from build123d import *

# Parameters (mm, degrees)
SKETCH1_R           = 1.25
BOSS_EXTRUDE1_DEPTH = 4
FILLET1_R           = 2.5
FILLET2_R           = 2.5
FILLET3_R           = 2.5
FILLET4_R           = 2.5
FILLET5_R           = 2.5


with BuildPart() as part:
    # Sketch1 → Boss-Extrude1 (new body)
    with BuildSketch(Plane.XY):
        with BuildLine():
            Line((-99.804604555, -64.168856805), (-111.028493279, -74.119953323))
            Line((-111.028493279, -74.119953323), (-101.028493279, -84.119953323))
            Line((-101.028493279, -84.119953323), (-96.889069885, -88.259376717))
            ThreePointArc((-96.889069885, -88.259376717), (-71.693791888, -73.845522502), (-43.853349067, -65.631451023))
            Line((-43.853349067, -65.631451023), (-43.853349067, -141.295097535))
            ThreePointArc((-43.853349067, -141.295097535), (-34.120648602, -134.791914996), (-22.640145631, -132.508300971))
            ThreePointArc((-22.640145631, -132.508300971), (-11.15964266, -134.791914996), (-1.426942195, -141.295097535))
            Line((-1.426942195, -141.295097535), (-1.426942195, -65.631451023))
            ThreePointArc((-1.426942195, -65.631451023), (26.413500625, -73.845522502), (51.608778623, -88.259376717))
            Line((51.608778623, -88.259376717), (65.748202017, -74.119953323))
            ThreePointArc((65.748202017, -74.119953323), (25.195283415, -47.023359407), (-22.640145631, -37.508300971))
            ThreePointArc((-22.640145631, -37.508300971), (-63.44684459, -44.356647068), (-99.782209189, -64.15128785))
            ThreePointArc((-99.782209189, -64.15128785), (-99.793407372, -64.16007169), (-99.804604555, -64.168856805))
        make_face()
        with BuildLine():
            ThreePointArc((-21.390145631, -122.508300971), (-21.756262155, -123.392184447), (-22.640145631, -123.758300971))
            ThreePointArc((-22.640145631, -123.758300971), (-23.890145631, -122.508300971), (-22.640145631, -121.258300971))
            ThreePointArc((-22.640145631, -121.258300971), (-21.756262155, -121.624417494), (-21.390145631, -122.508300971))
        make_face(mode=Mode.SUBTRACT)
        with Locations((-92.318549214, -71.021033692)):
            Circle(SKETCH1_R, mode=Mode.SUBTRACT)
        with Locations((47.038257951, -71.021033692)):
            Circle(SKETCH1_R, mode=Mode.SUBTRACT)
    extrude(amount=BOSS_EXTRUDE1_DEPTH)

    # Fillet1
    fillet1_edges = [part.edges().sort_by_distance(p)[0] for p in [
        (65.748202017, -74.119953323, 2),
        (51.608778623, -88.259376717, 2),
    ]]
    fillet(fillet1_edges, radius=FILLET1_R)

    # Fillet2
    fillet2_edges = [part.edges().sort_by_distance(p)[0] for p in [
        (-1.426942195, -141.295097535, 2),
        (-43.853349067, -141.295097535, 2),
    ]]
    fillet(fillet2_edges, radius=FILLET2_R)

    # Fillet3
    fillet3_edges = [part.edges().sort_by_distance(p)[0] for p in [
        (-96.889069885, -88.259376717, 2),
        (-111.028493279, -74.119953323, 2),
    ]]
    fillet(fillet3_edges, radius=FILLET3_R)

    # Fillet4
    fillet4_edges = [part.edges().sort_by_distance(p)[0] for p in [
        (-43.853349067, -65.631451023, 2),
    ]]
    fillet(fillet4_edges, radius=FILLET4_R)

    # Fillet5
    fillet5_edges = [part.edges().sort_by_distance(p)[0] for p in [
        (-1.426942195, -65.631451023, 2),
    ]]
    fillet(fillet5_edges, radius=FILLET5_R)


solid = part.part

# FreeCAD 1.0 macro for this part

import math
import FreeCAD as App
import Part
import Sketcher


def edges_at(feature, points):
    """Names of the edges that pass closest to the given points."""
    edges = feature.Shape.Edges
    near = lambda p: min(range(len(edges)), key=lambda i: edges[i].distToShape(Part.Vertex(*p))[0])
    return sorted({f"Edge{near(p) + 1}" for p in points})

doc = App.newDocument("Part")
body = doc.addObject("PartDesign::Body", "Body")

# Sketch on XY plane
sketch1 = doc.addObject("Sketcher::SketchObject", "Sketch")
body.addObject(sketch1)
sketch1.AttachmentSupport = (doc.XY_Plane, [""])
sketch1.MapMode = "FlatFace"
sketch1.addGeometry(Part.LineSegment(App.Vector(-99.804605, -64.168857, 0), App.Vector(-111.028493, -74.119953, 0)), False)
sketch1.addGeometry(Part.LineSegment(App.Vector(-111.028493, -74.119953, 0), App.Vector(-96.88907, -88.259377, 0)), False)
sketch1.addGeometry(Part.ArcOfCircle(Part.Circle(App.Vector(-22.640146, -188.818301, 0), App.Vector(0, 0, 1), 125), math.radians(99.770704), math.radians(126.440764)), False)
sketch1.addGeometry(Part.LineSegment(App.Vector(-43.853349, -65.631451, 0), App.Vector(-43.853349, -141.295098, 0)), False)
sketch1.addGeometry(Part.ArcOfCircle(Part.Circle(App.Vector(-22.640146, -162.508301, 0), App.Vector(0, 0, 1), 30), math.radians(90), math.radians(135)), False)
sketch1.addGeometry(Part.ArcOfCircle(Part.Circle(App.Vector(-22.640146, -162.508301, 0), App.Vector(0, 0, 1), 30), math.radians(45), math.radians(90)), False)
sketch1.addGeometry(Part.LineSegment(App.Vector(-1.426942, -141.295098, 0), App.Vector(-1.426942, -65.631451, 0)), False)
sketch1.addGeometry(Part.ArcOfCircle(Part.Circle(App.Vector(-22.640146, -188.818301, 0), App.Vector(0, 0, 1), 125), math.radians(53.559236), math.radians(80.229296)), False)
sketch1.addGeometry(Part.LineSegment(App.Vector(51.608779, -88.259377, 0), App.Vector(65.748202, -74.119953, 0)), False)
sketch1.addGeometry(Part.ArcOfCircle(Part.Circle(App.Vector(-22.640146, -162.508301, 0), App.Vector(0, 0, 1), 125), math.radians(45), math.radians(128.107327)), False)
sketch1.addGeometry(Part.ArcOfCircle(Part.Circle(App.Vector(-22.637136, -162.512133, 0), App.Vector(0, 0, 1), 125.004873), math.radians(128.107329), math.radians(128.120375)), False)
sketch1.addGeometry(Part.ArcOfCircle(Part.Circle(App.Vector(-22.640146, -122.508301, 0), App.Vector(0, 0, 1), 1.25), math.radians(0), math.radians(90)), False)
sketch1.addGeometry(Part.ArcOfCircle(Part.Circle(App.Vector(-22.640146, -122.508301, 0), App.Vector(0, 0, 1), 1.25), math.radians(-90), math.radians(0)), False)
sketch1.addGeometry(Part.ArcOfCircle(Part.Circle(App.Vector(-22.640146, -122.508301, 0), App.Vector(0, 0, 1), 1.25), math.radians(90), math.radians(270)), False)
sketch1.addGeometry(Part.Circle(App.Vector(-92.318549, -71.021034, 0), App.Vector(0, 0, 1), 1.25), False)
sketch1.addGeometry(Part.Circle(App.Vector(47.038258, -71.021034, 0), App.Vector(0, 0, 1), 1.25), False)
sketch1.addConstraint(Sketcher.Constraint("Coincident", 0, 2, 1, 1))
sketch1.addConstraint(Sketcher.Constraint("Coincident", 1, 2, 2, 2))
sketch1.addConstraint(Sketcher.Constraint("Coincident", 2, 1, 3, 1))
sketch1.addConstraint(Sketcher.Constraint("Coincident", 3, 2, 4, 2))
sketch1.addConstraint(Sketcher.Constraint("Tangent", 4, 1, 5, 2))
sketch1.addConstraint(Sketcher.Constraint("Coincident", 5, 1, 6, 1))
sketch1.addConstraint(Sketcher.Constraint("Coincident", 6, 2, 7, 2))
sketch1.addConstraint(Sketcher.Constraint("Coincident", 7, 1, 8, 1))
sketch1.addConstraint(Sketcher.Constraint("Coincident", 8, 2, 9, 1))
sketch1.addConstraint(Sketcher.Constraint("Tangent", 9, 2, 10, 1))
sketch1.addConstraint(Sketcher.Constraint("Coincident", 10, 2, 0, 1))
sketch1.addConstraint(Sketcher.Constraint("Tangent", 11, 1, 12, 2))
sketch1.addConstraint(Sketcher.Constraint("Tangent", 12, 1, 13, 2))
sketch1.addConstraint(Sketcher.Constraint("Tangent", 13, 1, 11, 2))
sketch1.addConstraint(Sketcher.Constraint("Vertical", 3))
sketch1.addConstraint(Sketcher.Constraint("Vertical", 6))
sketch1.addConstraint(Sketcher.Constraint("Coincident", 7, 3, 2, 3))
sketch1.addConstraint(Sketcher.Constraint("Coincident", 9, 3, 4, 3))
sketch1.addConstraint(Sketcher.Constraint("Equal", 4, 5))
sketch1.addConstraint(Sketcher.Constraint("Equal", 2, 7))
sketch1.addConstraint(Sketcher.Constraint("Equal", 7, 9))
sketch1.addConstraint(Sketcher.Constraint("Equal", 13, 14))
sketch1.addConstraint(Sketcher.Constraint("Equal", 14, 15))
sketch1.addConstraint(Sketcher.Constraint("Perpendicular", 1, 8))
sketch1.addConstraint(Sketcher.Constraint("Horizontal", 14, 3, 15, 3))
sketch1.addConstraint(Sketcher.Constraint("Horizontal", 3, 2, 5, 1))
sketch1.addConstraint(Sketcher.Constraint("Horizontal", 2, 1, 6, 2))
sketch1.addConstraint(Sketcher.Constraint("Horizontal", 1, 2, 7, 1))
sketch1.addConstraint(Sketcher.Constraint("Horizontal", 0, 2, 8, 2))
sketch1.addConstraint(Sketcher.Constraint("Horizontal", 13, 3, 11, 1))
sketch1.addConstraint(Sketcher.Constraint("Vertical", 9, 3, 11, 3))
sketch1.addConstraint(Sketcher.Constraint("Vertical", 13, 3, 4, 1))
sketch1.addConstraint(Sketcher.Constraint("Vertical", 4, 1, 12, 1))
sketch1.addConstraint(Sketcher.Constraint("Vertical", 12, 1, 13, 1))
sketch1.addConstraint(Sketcher.Constraint("Equal", 1, 8))
sketch1.addConstraint(Sketcher.Constraint("Radius", 2, 125.0))
sketch1.addConstraint(Sketcher.Constraint("Radius", 4, 30.0))
sketch1.addConstraint(Sketcher.Constraint("Diameter", 14, 2.5))
sketch1.addConstraint(Sketcher.Constraint("Distance", 0, 15.0))
sketch1.addConstraint(Sketcher.Constraint("DistanceY", 9, 3, 11, 3, 40.0))
sketch1.addConstraint(Sketcher.Constraint("DistanceY", 2, 3, 4, 3, 26.31))
sketch1.addConstraint(Sketcher.Constraint("Radius", 10, 125.004873))
sketch1.addConstraint(Sketcher.Constraint("DistanceY", 2, 3, -1, 1, 188.818301))
sketch1.addConstraint(Sketcher.Constraint("DistanceX", 14, 3, 2, 1, 48.4652))
sketch1.addConstraint(Sketcher.Constraint("DistanceX", 6, 2, 15, 3, 48.4652))
sketch1.addConstraint(Sketcher.Constraint("DistanceY", 3, 2, 3, 1, 75.663647))
sketch1.addConstraint(Sketcher.Constraint("DistanceX", 14, 3, -1, 1, 92.318549))
sketch1.addConstraint(Sketcher.Constraint("DistanceX", 1, 2, -1, 1, 96.88907))
sketch1.addConstraint(Sketcher.Constraint("DistanceX", 9, 2, -1, 1, 99.782209))
sketch1.addConstraint(Sketcher.Constraint("DistanceY", 0, 2, 14, 3, 3.09892))
pad1 = doc.addObject("PartDesign::Pad", "Pad")
body.addObject(pad1)
pad1.Profile = sketch1
pad1.Length = 4
doc.recompute()

fillet = doc.addObject("PartDesign::Fillet", "Fillet")
body.addObject(fillet)
fillet.Base = (pad1, edges_at(pad1, [(65.748, -74.12, 2), (51.609, -88.259, 2)]))
fillet.Radius = 2.5
doc.recompute()

fillet2 = doc.addObject("PartDesign::Fillet", "Fillet001")
body.addObject(fillet2)
fillet2.Base = (fillet, edges_at(fillet, [(-1.427, -141.295, 2), (-43.853, -141.295, 2)]))
fillet2.Radius = 2.5
doc.recompute()

fillet3 = doc.addObject("PartDesign::Fillet", "Fillet002")
body.addObject(fillet3)
fillet3.Base = (fillet2, edges_at(fillet2, [(-96.889, -88.259, 2), (-111.028, -74.12, 2)]))
fillet3.Radius = 2.5
doc.recompute()

fillet4 = doc.addObject("PartDesign::Fillet", "Fillet003")
body.addObject(fillet4)
fillet4.Base = (fillet3, edges_at(fillet3, [(-43.853, -65.631, 2)]))
fillet4.Radius = 2.5
doc.recompute()

fillet5 = doc.addObject("PartDesign::Fillet", "Fillet004")
body.addObject(fillet5)
fillet5.Base = (fillet4, edges_at(fillet4, [(-1.427, -65.631, 2)]))
fillet5.Radius = 2.5

doc.recompute()
